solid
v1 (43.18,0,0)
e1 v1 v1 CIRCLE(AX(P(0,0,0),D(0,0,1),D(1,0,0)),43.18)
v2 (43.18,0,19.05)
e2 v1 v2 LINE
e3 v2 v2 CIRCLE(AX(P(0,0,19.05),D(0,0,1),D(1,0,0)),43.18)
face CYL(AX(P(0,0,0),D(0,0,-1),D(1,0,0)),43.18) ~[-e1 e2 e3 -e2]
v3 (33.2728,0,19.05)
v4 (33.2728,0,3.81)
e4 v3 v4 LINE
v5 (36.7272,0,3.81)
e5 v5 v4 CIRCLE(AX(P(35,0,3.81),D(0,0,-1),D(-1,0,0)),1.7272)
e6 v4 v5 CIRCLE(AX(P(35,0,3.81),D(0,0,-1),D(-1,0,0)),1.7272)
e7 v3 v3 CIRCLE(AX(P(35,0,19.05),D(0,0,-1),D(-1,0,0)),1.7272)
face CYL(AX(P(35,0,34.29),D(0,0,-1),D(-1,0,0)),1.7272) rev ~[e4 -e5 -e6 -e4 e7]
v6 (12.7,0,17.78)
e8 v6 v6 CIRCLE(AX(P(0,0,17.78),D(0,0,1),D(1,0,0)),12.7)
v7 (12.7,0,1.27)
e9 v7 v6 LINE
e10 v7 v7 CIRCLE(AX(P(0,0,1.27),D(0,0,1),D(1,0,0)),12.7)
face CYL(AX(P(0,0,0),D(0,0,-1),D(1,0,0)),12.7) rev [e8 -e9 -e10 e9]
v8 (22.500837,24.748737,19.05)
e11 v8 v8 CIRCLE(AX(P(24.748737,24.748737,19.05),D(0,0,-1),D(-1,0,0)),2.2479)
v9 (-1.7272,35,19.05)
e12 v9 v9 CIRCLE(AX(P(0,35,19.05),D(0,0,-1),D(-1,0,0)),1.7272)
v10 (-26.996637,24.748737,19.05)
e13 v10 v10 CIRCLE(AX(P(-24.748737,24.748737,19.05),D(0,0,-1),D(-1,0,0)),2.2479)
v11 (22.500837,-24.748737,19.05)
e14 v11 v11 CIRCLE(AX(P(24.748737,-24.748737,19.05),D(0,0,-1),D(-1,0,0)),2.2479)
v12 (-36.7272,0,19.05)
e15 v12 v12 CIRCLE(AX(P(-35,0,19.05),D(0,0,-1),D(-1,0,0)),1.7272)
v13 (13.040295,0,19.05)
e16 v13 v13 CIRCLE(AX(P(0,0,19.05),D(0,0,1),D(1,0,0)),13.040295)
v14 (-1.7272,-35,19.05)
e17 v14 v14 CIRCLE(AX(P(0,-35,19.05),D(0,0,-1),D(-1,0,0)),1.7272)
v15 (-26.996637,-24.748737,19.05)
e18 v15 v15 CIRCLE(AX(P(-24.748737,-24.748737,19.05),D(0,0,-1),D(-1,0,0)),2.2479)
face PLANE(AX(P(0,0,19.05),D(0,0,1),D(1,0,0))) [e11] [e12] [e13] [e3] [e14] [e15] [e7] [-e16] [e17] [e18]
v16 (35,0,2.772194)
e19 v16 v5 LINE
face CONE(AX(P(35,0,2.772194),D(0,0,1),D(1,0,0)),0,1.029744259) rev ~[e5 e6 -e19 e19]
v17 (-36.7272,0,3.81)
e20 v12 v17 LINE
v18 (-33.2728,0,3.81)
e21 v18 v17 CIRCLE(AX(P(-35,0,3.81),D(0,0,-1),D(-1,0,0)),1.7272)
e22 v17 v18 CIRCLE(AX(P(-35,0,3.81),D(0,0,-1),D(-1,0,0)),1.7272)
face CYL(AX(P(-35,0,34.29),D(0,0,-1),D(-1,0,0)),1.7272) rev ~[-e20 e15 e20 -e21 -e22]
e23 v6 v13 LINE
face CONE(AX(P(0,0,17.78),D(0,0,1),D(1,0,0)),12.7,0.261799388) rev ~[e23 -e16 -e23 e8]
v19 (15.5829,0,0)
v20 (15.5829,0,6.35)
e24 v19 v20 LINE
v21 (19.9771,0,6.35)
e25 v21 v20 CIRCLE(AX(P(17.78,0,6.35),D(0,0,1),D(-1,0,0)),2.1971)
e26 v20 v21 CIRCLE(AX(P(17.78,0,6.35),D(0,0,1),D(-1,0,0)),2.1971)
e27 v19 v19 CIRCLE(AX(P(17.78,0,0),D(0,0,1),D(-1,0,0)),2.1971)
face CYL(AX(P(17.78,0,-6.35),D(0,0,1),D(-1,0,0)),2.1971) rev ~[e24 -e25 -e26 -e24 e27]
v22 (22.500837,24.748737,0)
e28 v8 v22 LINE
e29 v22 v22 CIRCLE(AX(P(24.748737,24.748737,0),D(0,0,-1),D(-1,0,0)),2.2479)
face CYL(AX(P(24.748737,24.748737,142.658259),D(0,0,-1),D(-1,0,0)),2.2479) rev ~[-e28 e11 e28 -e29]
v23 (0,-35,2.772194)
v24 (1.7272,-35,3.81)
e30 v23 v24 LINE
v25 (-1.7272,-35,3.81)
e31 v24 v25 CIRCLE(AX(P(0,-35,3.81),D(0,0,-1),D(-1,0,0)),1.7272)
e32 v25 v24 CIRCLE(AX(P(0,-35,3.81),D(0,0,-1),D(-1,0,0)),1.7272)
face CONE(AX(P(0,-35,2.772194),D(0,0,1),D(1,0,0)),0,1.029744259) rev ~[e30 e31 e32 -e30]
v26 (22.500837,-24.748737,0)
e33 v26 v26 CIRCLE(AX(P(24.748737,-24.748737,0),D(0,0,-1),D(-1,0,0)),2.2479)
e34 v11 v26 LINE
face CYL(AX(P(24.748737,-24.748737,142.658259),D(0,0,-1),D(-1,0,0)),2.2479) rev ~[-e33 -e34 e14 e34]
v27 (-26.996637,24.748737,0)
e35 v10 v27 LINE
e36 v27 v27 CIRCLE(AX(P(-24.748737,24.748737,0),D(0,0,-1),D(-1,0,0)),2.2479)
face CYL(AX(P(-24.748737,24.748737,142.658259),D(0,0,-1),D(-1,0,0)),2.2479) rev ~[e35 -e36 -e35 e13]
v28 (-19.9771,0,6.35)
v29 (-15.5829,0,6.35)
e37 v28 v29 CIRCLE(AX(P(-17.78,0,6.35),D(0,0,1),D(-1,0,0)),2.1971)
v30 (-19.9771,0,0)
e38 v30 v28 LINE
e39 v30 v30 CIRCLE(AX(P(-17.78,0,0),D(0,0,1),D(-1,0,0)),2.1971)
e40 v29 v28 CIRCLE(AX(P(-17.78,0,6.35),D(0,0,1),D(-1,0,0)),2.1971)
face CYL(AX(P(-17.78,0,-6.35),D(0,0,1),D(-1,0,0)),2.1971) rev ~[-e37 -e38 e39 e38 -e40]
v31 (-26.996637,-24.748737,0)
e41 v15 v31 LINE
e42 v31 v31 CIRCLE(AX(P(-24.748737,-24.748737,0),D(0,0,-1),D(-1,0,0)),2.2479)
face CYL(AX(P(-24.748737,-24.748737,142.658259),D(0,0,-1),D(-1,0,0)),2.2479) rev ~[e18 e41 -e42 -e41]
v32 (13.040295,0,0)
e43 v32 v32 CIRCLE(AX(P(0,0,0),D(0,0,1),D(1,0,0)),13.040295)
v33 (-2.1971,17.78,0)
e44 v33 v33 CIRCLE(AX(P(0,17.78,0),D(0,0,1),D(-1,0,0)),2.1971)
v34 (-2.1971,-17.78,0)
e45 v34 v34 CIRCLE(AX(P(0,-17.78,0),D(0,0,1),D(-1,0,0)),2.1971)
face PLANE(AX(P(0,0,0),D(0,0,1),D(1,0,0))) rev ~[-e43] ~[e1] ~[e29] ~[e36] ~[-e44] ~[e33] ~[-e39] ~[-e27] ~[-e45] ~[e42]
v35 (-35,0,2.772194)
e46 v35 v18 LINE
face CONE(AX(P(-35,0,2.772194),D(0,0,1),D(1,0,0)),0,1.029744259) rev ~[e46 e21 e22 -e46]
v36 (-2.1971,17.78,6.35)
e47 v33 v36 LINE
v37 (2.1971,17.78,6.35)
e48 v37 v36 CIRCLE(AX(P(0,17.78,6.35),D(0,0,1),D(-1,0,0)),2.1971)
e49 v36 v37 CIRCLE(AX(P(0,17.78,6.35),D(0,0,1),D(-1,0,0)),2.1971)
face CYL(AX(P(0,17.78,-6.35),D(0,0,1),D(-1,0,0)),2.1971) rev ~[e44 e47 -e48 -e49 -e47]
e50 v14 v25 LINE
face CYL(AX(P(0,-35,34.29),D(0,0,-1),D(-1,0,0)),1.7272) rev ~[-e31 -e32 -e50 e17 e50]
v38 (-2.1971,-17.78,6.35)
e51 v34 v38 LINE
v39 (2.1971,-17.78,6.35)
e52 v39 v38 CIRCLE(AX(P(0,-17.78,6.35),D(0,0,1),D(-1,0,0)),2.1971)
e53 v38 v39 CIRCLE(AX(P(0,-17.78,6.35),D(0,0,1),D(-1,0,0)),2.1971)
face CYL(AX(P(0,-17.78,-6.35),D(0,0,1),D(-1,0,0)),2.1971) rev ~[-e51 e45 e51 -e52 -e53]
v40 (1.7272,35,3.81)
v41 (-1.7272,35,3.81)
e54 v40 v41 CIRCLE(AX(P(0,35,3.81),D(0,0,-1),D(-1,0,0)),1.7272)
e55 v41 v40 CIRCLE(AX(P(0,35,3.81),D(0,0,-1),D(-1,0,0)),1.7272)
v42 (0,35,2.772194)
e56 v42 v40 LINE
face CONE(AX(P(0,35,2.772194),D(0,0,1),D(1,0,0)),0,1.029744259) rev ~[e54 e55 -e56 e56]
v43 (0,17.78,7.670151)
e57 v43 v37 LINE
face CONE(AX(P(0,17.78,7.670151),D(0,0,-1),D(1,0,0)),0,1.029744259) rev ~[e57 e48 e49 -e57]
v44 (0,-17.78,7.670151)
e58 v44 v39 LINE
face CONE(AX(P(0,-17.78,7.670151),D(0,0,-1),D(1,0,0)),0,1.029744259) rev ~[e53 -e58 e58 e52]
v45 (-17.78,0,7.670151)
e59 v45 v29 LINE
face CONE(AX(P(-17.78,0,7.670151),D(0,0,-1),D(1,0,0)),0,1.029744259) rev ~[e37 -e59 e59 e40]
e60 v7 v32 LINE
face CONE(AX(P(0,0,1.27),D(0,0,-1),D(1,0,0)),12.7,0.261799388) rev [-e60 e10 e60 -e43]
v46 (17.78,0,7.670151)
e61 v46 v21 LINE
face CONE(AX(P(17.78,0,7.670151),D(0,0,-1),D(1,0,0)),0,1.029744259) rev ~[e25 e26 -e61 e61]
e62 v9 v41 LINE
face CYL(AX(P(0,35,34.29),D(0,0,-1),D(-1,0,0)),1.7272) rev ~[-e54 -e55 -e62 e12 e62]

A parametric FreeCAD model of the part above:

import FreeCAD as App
import Part
import Sketcher
Q = App.Units.Quantity


def edges_at(feature, points):
    """Names of the edges that pass closest to the given points."""
    edges = feature.Shape.Edges
    near = lambda p: min(range(len(edges)), key=lambda i: edges[i].distToShape(Part.Vertex(*p))[0])
    return sorted({f"Edge{near(p) + 1}" for p in points})

doc = App.newDocument("Part")
params = doc.addObject("Spreadsheet::Sheet", "Params")
for row, (alias, value) in enumerate([
    ("sketch1_diameter", "1 in"),
    ("sketch1_diameter2", "3.4 in"),
    ("pad1_length", "0.75 in"),
    ("chamfer_size", "0.05 in"),
    ("chamfer_size2", "0.340295 mm"),
    ("sketch2_diameter", "0.173 in"),
    ("hole_diameter", "0.173 in"),
    ("hole_depth", "0.25 in"),
    ("sketch3_diameter", "0.136 in"),
    ("hole2_diameter", "0.136 in"),
    ("hole2_depth", "0.6 in"),
    ("sketch4_diameter", "0.177 in"),
    ("hole3_diameter", "0.177 in"),
], start=1):
    params.set(f"A{row}", alias)
    params.set(f"B{row}", "=" + value)
    params.setAlias(f"B{row}", alias)

body = doc.addObject("PartDesign::Body", "Body")

# Sketch on XY plane
sketch1 = body.newObject("Sketcher::SketchObject", "Sketch")
sketch1.AttachmentSupport = (doc.getObject("XY_Plane"), [""])
sketch1.MapMode = "FlatFace"
sketch1.addGeometry([
    Part.Circle(App.Vector(0, 0, 0), App.Vector(0, 0, 1), 43),
    Part.Circle(App.Vector(0, 0, 0), App.Vector(0, 0, 1), 13),
], False)
sketch1.addConstraint([
    Sketcher.Constraint("Coincident", 0, 3, -1, 1),
    Sketcher.Constraint("Coincident", 1, 3, -1, 1),
    Sketcher.Constraint("Diameter", 1, Q("1 in")),
    Sketcher.Constraint("Diameter", 0, Q("3.4 in")),
])
sketch1.setExpression("Constraints[2]", "Params.sketch1_diameter")
sketch1.setExpression("Constraints[3]", "Params.sketch1_diameter2")
pad1 = body.newObject("PartDesign::Pad", "Pad")
pad1.Profile = sketch1
pad1.setExpression("Length", "Params.pad1_length")
doc.recompute()

chamfer = body.newObject("PartDesign::Chamfer", "Chamfer")
chamfer.Base = (pad1, edges_at(pad1, [(-12.7, 0, 19.05), (-12.7, 0, 0)]))
chamfer.ChamferType = "Two distances"
chamfer.setExpression("Size", "Params.chamfer_size")
chamfer.setExpression("Size2", "Params.chamfer_size2")

# Sketch on XY plane
sketch2 = body.newObject("Sketcher::SketchObject", "Sketch001")
sketch2.AttachmentSupport = (doc.getObject("XY_Plane"), [""])
sketch2.MapMode = "FlatFace"
sketch2.addGeometry([
    Part.Circle(App.Vector(0, 17.8, 0), App.Vector(0, 0, 1), 2.2),
    Part.Circle(App.Vector(-17.8, 0, 0), App.Vector(0, 0, 1), 2.2),
    Part.Circle(App.Vector(0, -17.8, 0), App.Vector(0, 0, 1), 2.2),
    Part.Circle(App.Vector(17.8, 0, 0), App.Vector(0, 0, 1), 2.2),
], False)
sketch2.addConstraint([
    Sketcher.Constraint("Equal", 0, 1),
    Sketcher.Constraint("Equal", 1, 2),
    Sketcher.Constraint("Equal", 2, 3),
    Sketcher.Constraint("Symmetric", 0, 3, 2, 3, -1, 1),
    Sketcher.Constraint("Symmetric", 1, 3, 3, 3, -1, 1),
    Sketcher.Constraint("PointOnObject", 0, 3, -2),
    Sketcher.Constraint("PointOnObject", 1, 3, -1),
    Sketcher.Constraint("Diameter", 0, Q("0.173 in")),
    Sketcher.Constraint("DistanceY", -1, 1, 0, 3, Q("0.7 in")),
    Sketcher.Constraint("DistanceX", 1, 3, -1, 1, Q("0.7 in")),
])
sketch2.setExpression("Constraints[7]", "Params.sketch2_diameter")
doc.recompute()
hole = body.newObject("PartDesign::Hole", "Hole")
hole.Profile = sketch2
hole.ThreadType = "None"
hole.setExpression("Diameter", "Params.hole_diameter")
hole.DepthType = "Dimension"
hole.setExpression("Depth", "Params.hole_depth")
hole.DrillPoint = "Angled"
hole.DrillPointAngle = 118
hole.Reversed = True

# Sketch on XY plane
sketch3 = body.newObject("Sketcher::SketchObject", "Sketch002")
sketch3.AttachmentSupport = (doc.getObject("XY_Plane"), [""])
sketch3.MapMode = "FlatFace"
sketch3.AttachmentOffset = App.Placement(App.Vector(0, 0, 0.75 * 25.4), App.Rotation())
sketch3.addGeometry([
    Part.Circle(App.Vector(35, 0, 0), App.Vector(0, 0, 1), 1.7),
    Part.Circle(App.Vector(0, -35, 0), App.Vector(0, 0, 1), 1.7),
    Part.Circle(App.Vector(-35, 0, 0), App.Vector(0, 0, 1), 1.7),
    Part.Circle(App.Vector(0, 35, 0), App.Vector(0, 0, 1), 1.7),
], False)
sketch3.addConstraint([
    Sketcher.Constraint("Equal", 0, 1),
    Sketcher.Constraint("Equal", 1, 2),
    Sketcher.Constraint("Equal", 2, 3),
    Sketcher.Constraint("Symmetric", 0, 3, 2, 3, -1, 1),
    Sketcher.Constraint("Symmetric", 1, 3, 3, 3, -1, 1),
    Sketcher.Constraint("PointOnObject", 0, 3, -1),
    Sketcher.Constraint("PointOnObject", 1, 3, -2),
    Sketcher.Constraint("Diameter", 0, Q("0.136 in")),
    Sketcher.Constraint("DistanceX", -1, 1, 0, 3, 35.0),
    Sketcher.Constraint("DistanceY", 1, 3, -1, 1, 35.0),
])
sketch3.setExpression("Constraints[7]", "Params.sketch3_diameter")
doc.recompute()
hole2 = body.newObject("PartDesign::Hole", "Hole001")
hole2.Profile = sketch3
hole2.ThreadType = "None"
hole2.setExpression("Diameter", "Params.hole2_diameter")
hole2.DepthType = "Dimension"
hole2.setExpression("Depth", "Params.hole2_depth")
hole2.DrillPoint = "Angled"
hole2.DrillPointAngle = 118

# Sketch on XY plane
sketch4 = body.newObject("Sketcher::SketchObject", "Sketch003")
sketch4.AttachmentSupport = (doc.getObject("XY_Plane"), [""])
sketch4.MapMode = "FlatFace"
sketch4.AttachmentOffset = App.Placement(App.Vector(0, 0, 0.75 * 25.4), App.Rotation())
sketch4.addGeometry([
    Part.Circle(App.Vector(24.7, -24.7, 0), App.Vector(0, 0, 1), 2.2),
    Part.Circle(App.Vector(-24.7, -24.7, 0), App.Vector(0, 0, 1), 2.2),
    Part.Circle(App.Vector(-24.7, 24.7, 0), App.Vector(0, 0, 1), 2.2),
    Part.Circle(App.Vector(24.7, 24.7, 0), App.Vector(0, 0, 1), 2.2),
], False)
sketch4.addConstraint([
    Sketcher.Constraint("Equal", 0, 1),
    Sketcher.Constraint("Equal", 1, 2),
    Sketcher.Constraint("Equal", 2, 3),
    Sketcher.Constraint("Symmetric", 0, 3, 2, 3, -1, 1),
    Sketcher.Constraint("Symmetric", 1, 3, 3, 3, -1, 1),
    Sketcher.Constraint("Symmetric", 0, 3, 1, 3, -2),
    Sketcher.Constraint("Diameter", 0, Q("0.177 in")),
    Sketcher.Constraint("DistanceX", -1, 1, 0, 3, 24.748737),
    Sketcher.Constraint("DistanceY", 0, 3, -1, 1, 24.748737),
])
sketch4.setExpression("Constraints[6]", "Params.sketch4_diameter")
doc.recompute()
hole3 = body.newObject("PartDesign::Hole", "Hole002")
hole3.Profile = sketch4
hole3.ThreadType = "None"
hole3.setExpression("Diameter", "Params.hole3_diameter")
hole3.DepthType = "ThroughAll"

doc.recompute()
